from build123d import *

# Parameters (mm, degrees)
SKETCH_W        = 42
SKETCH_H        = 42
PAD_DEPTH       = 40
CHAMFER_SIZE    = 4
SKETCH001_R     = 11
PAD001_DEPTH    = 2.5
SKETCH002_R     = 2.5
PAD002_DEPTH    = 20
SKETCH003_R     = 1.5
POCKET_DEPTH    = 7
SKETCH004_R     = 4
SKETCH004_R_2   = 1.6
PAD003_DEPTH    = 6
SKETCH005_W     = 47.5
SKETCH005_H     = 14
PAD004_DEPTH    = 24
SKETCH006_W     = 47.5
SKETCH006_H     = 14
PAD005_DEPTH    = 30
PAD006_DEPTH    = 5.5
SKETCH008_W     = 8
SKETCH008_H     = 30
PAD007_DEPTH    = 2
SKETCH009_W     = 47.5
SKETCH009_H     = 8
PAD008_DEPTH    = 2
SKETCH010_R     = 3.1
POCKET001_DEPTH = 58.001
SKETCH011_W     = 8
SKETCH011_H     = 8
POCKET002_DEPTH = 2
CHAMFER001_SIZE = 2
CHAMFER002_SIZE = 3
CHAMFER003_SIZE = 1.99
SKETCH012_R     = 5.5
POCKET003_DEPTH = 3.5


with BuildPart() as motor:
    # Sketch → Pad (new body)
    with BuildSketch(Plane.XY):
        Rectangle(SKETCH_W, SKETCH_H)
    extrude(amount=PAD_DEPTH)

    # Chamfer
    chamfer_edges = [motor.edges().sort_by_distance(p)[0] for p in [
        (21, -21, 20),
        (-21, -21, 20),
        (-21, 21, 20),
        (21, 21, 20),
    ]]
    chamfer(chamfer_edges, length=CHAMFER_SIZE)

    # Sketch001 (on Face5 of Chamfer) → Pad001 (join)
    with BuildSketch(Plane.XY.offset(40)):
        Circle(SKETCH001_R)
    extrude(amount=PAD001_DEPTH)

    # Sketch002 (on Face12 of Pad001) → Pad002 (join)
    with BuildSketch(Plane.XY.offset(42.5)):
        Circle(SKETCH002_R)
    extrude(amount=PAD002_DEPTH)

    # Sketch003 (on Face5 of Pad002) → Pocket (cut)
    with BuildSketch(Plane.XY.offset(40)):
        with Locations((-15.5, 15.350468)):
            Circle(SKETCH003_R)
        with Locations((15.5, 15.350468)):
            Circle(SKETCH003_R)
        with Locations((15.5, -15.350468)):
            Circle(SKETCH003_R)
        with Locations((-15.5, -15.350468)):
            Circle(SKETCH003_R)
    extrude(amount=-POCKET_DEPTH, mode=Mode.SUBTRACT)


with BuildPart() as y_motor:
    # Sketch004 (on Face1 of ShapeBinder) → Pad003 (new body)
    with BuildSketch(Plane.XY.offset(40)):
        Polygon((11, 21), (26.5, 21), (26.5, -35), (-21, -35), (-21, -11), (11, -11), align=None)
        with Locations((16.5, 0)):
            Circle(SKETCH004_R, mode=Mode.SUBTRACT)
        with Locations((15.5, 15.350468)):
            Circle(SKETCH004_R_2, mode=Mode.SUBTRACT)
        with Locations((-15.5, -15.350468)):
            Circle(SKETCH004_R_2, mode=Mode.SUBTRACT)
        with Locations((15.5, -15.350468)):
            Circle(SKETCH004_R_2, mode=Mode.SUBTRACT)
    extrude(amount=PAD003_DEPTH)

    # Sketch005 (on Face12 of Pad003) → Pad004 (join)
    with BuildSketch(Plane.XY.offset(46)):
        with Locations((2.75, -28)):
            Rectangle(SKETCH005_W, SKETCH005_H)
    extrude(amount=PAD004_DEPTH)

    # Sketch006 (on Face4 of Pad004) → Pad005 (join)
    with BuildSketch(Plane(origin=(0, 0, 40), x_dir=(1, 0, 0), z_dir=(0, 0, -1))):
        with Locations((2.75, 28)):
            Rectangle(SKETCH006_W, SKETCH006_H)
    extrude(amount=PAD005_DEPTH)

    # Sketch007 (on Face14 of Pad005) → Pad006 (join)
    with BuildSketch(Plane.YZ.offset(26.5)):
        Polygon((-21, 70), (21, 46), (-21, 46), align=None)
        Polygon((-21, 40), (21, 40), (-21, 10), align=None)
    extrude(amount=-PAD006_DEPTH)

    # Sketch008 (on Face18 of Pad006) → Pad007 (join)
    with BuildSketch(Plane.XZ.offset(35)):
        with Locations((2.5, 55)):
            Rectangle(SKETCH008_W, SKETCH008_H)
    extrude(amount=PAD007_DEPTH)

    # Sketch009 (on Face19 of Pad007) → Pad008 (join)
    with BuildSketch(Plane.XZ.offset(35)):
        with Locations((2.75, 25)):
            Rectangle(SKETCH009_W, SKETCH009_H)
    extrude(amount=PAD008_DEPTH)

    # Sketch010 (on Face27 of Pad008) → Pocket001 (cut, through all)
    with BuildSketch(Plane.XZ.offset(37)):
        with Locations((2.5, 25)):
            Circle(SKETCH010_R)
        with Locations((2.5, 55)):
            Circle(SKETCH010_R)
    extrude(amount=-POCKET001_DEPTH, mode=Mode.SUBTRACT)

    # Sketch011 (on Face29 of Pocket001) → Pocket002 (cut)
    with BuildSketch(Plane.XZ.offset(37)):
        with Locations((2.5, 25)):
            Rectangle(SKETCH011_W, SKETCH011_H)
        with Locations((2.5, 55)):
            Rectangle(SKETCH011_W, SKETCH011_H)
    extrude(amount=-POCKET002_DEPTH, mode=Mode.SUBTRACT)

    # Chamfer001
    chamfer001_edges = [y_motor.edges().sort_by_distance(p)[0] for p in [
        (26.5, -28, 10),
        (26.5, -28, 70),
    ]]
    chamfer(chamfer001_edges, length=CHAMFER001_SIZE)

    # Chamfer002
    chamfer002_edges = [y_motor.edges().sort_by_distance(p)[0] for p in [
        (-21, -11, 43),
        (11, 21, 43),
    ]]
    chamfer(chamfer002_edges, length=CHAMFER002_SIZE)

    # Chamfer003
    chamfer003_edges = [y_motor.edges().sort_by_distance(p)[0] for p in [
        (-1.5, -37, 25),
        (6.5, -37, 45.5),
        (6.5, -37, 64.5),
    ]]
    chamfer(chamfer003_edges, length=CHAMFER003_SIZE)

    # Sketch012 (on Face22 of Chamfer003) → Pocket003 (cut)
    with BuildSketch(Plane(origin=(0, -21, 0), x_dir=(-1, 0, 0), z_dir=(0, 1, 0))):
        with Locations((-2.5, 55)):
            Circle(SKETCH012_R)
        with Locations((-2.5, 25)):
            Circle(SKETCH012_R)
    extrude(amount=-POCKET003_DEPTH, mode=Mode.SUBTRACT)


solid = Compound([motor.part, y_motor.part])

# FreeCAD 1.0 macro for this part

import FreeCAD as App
import Part
import Sketcher

V = App.Vector


def edges_at(feature, points):
    """Names of the edges that pass closest to the given points."""
    edges = feature.Shape.Edges
    near = lambda p: min(range(len(edges)), key=lambda i: edges[i].distToShape(Part.Vertex(*p))[0])
    return sorted({f"Edge{near(p) + 1}" for p in points})


def add_polygon(sketch, points):
    """Adds a closed chain of lines whose ends are joined by coincident constraints."""
    first, n = sketch.GeometryCount, len(points)
    for a, b in zip(points, points[1:] + points[:1]):
        sketch.addGeometry(Part.LineSegment(App.Vector(*a, 0), App.Vector(*b, 0)), False)
    for i in range(n):
        sketch.addConstraint(Sketcher.Constraint("Coincident", first + i, 2, first + (i + 1) % n, 1))

doc = App.newDocument("Part")
body = doc.addObject("PartDesign::Body", "Body")

sketch1 = body.newObject("Sketcher::SketchObject", "Sketch")
sketch1.AttachmentSupport = (doc.getObject("XY_Plane"), [""])
sketch1.MapMode = "FlatFace"
add_polygon(sketch1, [(-21, 21), (-21, -21), (21, -21), (21, 21)])
sketch1.addConstraint([
    Sketcher.Constraint("Vertical", 0),
    Sketcher.Constraint("Horizontal", 1),
    Sketcher.Constraint("Vertical", 2),
    Sketcher.Constraint("Horizontal", 3),
    Sketcher.Constraint("Symmetric", 0, 2, 2, 2, -1, 1),
    Sketcher.Constraint("Equal", 3, 0),
    Sketcher.Constraint("DistanceX", 1, 1, 1, 2, 42.0),
])
pad1 = body.newObject("PartDesign::Pad", "Pad")
pad1.Profile = sketch1
pad1.Length = 40
doc.recompute()

chamfer = body.newObject("PartDesign::Chamfer", "Chamfer")
chamfer.Base = (pad1, edges_at(pad1, [
    (21, -21, 20),
    (-21, -21, 20),
    (-21, 21, 20),
    (21, 21, 20),
]))
chamfer.Size = 4

sketch2 = body.newObject("Sketcher::SketchObject", "Sketch001")
sketch2.AttachmentSupport = (doc.getObject("XY_Plane"), [""])
sketch2.MapMode = "FlatFace"
sketch2.AttachmentOffset = App.Placement(V(0, 0, 40), App.Rotation())
sketch2.addGeometry(Part.Circle(V(0, 0, 0), V(0, 0, 1), 11), False)
sketch2.addConstraint([
    Sketcher.Constraint("Coincident", 0, 3, -1, 1),
    Sketcher.Constraint("Diameter", 0, 22.0),
])
pad2 = body.newObject("PartDesign::Pad", "Pad001")
pad2.Profile = sketch2
pad2.Length = 2.5

sketch3 = body.newObject("Sketcher::SketchObject", "Sketch002")
sketch3.AttachmentSupport = (doc.getObject("XY_Plane"), [""])
sketch3.MapMode = "FlatFace"
sketch3.AttachmentOffset = App.Placement(V(0, 0, 42.5), App.Rotation())
sketch3.addGeometry(Part.Circle(V(0, 0, 0), V(0, 0, 1), 2.5), False)
sketch3.addConstraint([
    Sketcher.Constraint("Coincident", 0, 3, -1, 1),
    Sketcher.Constraint("Diameter", 0, 5.0),
])
pad3 = body.newObject("PartDesign::Pad", "Pad002")
pad3.Profile = sketch3
pad3.Length = 20

sketch4 = body.newObject("Sketcher::SketchObject", "Sketch003")
sketch4.AttachmentSupport = (doc.getObject("XY_Plane"), [""])
sketch4.MapMode = "FlatFace"
sketch4.AttachmentOffset = App.Placement(V(0, 0, 40), App.Rotation())
sketch4.addGeometry([
    Part.Circle(V(-15.5, 15.4, 0), V(0, 0, 1), 1.5),
    Part.Circle(V(15.5, 15.4, 0), V(0, 0, 1), 1.5),
    Part.Circle(V(15.5, -15.4, 0), V(0, 0, 1), 1.5),
    Part.Circle(V(-15.5, -15.4, 0), V(0, 0, 1), 1.5),
], False)
sketch4.addConstraint([
    Sketcher.Constraint("Equal", 0, 1),
    Sketcher.Constraint("Equal", 1, 2),
    Sketcher.Constraint("Equal", 2, 3),
    Sketcher.Constraint("Symmetric", 0, 3, 2, 3, -1, 1),
    Sketcher.Constraint("Symmetric", 1, 3, 3, 3, -1, 1),
    Sketcher.Constraint("Symmetric", 0, 3, 1, 3, -2),
    Sketcher.Constraint("Diameter", 0, 3.0),
    Sketcher.Constraint("DistanceX", 0, 3, 1, 3, 31.0),
    Sketcher.Constraint("DistanceY", -1, 1, 0, 3, 15.350468),
])
pocket1 = body.newObject("PartDesign::Pocket", "Pocket")
pocket1.Profile = sketch4
pocket1.Length = 7
body2 = doc.addObject("PartDesign::Body", "Body001")

sketch5 = body2.newObject("Sketcher::SketchObject", "Sketch004")
sketch5.AttachmentSupport = (doc.getObject("XY_Plane001"), [""])
sketch5.MapMode = "FlatFace"
sketch5.AttachmentOffset = App.Placement(V(0, 0, 40), App.Rotation())
add_polygon(sketch5, [(26.5, 21), (11, 21), (11, -11), (-21, -11), (-21, -35), (26.5, -35)])
sketch5.addGeometry(Part.Circle(V(15.5, -15.4, 0), V(0, 0, 1), 1.6), False)
sketch5.addGeometry(Part.Circle(V(-15.5, -15.4, 0), V(0, 0, 1), 1.6), False)
sketch5.addGeometry(Part.Circle(V(16.5, 0, 0), V(0, 0, 1), 4), False)
sketch5.addGeometry(Part.Circle(V(15.5, 15.4, 0), V(0, 0, 1), 1.6), False)
sketch5.addConstraint([
    Sketcher.Constraint("Horizontal", 0),
    Sketcher.Constraint("Vertical", 1),
    Sketcher.Constraint("Horizontal", 2),
    Sketcher.Constraint("Vertical", 3),
    Sketcher.Constraint("Horizontal", 4),
    Sketcher.Constraint("Vertical", 5),
    Sketcher.Constraint("Equal", 6, 7),
    Sketcher.Constraint("Equal", 7, 9),
    Sketcher.Constraint("Symmetric", 7, 3, 9, 3, -1, 1),
    Sketcher.Constraint("Symmetric", 6, 3, 7, 3, -2),
    Sketcher.Constraint("PointOnObject", 8, 3, -1),
    Sketcher.Constraint("Equal", 2, 1),
    Sketcher.Constraint("Diameter", 8, 8.0),
    Sketcher.Constraint("Diameter", 6, 3.2),
    Sketcher.Constraint("DistanceX", 2, 2, 2, 1, 32.0),
    Sketcher.Constraint("DistanceY", 3, 2, 3, 1, 24.0),
    Sketcher.Constraint("DistanceX", 0, 2, 0, 1, 15.5),
    Sketcher.Constraint("DistanceX", -1, 1, 0, 2, 11.0),
    Sketcher.Constraint("DistanceY", -1, 1, 0, 2, 21.0),
    Sketcher.Constraint("DistanceX", 7, 3, 6, 3, 31.0),
    Sketcher.Constraint("DistanceX", 6, 3, 8, 3, 1.0),
    Sketcher.Constraint("DistanceY", 6, 3, -1, 1, 15.350468),
])
pad4 = body2.newObject("PartDesign::Pad", "Pad003")
pad4.Profile = sketch5
pad4.Length = 6

sketch6 = body2.newObject("Sketcher::SketchObject", "Sketch005")
sketch6.AttachmentSupport = (doc.getObject("XY_Plane001"), [""])
sketch6.MapMode = "FlatFace"
sketch6.AttachmentOffset = App.Placement(V(0, 0, 46), App.Rotation())
add_polygon(sketch6, [(-21, -21), (-21, -35), (26, -35), (26, -21)])
sketch6.addConstraint([
    Sketcher.Constraint("Vertical", 0),
    Sketcher.Constraint("Horizontal", 1),
    Sketcher.Constraint("Vertical", 2),
    Sketcher.Constraint("Horizontal", 3),
    Sketcher.Constraint("DistanceY", 0, 2, 0, 1, 14.0),
    Sketcher.Constraint("DistanceX", 1, 1, 1, 2, 47.5),
    Sketcher.Constraint("DistanceX", 0, 2, -1, 1, 21.0),
    Sketcher.Constraint("DistanceY", 0, 2, -1, 1, 35.0),
])
pad5 = body2.newObject("PartDesign::Pad", "Pad004")
pad5.Profile = sketch6
pad5.Length = 24

sketch7 = body2.newObject("Sketcher::SketchObject", "Sketch006")
sketch7.AttachmentSupport = (doc.getObject("XY_Plane001"), [""])
sketch7.MapMode = "FlatFace"
sketch7.AttachmentOffset = App.Placement(V(0, 0, 40), App.Rotation())
add_polygon(sketch7, [(-21, -35), (-21, -21), (26, -21), (26, -35)])
sketch7.addConstraint([
    Sketcher.Constraint("Vertical", 0),
    Sketcher.Constraint("Horizontal", 1),
    Sketcher.Constraint("Vertical", 2),
    Sketcher.Constraint("Horizontal", 3),
    Sketcher.Constraint("DistanceY", 0, 1, 0, 2, 14.0),
    Sketcher.Constraint("DistanceX", 1, 1, 1, 2, 47.5),
    Sketcher.Constraint("DistanceX", 0, 2, -1, 1, 21.0),
    Sketcher.Constraint("DistanceY", 0, 2, -1, 1, 21.0),
])
pad6 = body2.newObject("PartDesign::Pad", "Pad005")
pad6.Profile = sketch7
pad6.Length = 30
pad6.Reversed = True

sketch8 = body2.newObject("Sketcher::SketchObject", "Sketch007")
sketch8.AttachmentSupport = (doc.getObject("YZ_Plane001"), [""])
sketch8.MapMode = "FlatFace"
sketch8.AttachmentOffset = App.Placement(V(0, 0, 26.5), App.Rotation())
add_polygon(sketch8, [(21, 46), (-21, 70), (-21, 46)])
add_polygon(sketch8, [(21, 40), (-21, 40), (-21, 10)])
sketch8.addConstraint([
    Sketcher.Constraint("Vertical", 1),
    Sketcher.Constraint("Horizontal", 2),
    Sketcher.Constraint("Horizontal", 3),
    Sketcher.Constraint("Vertical", 4),
    Sketcher.Constraint("Vertical", 1, 2, 3, 2),
    Sketcher.Constraint("Vertical", 2, 2, 5, 2),
    Sketcher.Constraint("DistanceX", 2, 1, 2, 2, 42.0),
    Sketcher.Constraint("DistanceY", 1, 2, 1, 1, 24.0),
    Sketcher.Constraint("DistanceY", 4, 2, 4, 1, 30.0),
    Sketcher.Constraint("DistanceX", 0, 2, -1, 1, 21.0),
    Sketcher.Constraint("DistanceY", -1, 1, 0, 2, 70.0),
    Sketcher.Constraint("DistanceY", -1, 1, 3, 2, 40.0),
])
pad7 = body2.newObject("PartDesign::Pad", "Pad006")
pad7.Profile = sketch8
pad7.Length = 5.5
pad7.Reversed = True

sketch9 = body2.newObject("Sketcher::SketchObject", "Sketch008")
sketch9.AttachmentSupport = (doc.getObject("XZ_Plane001"), [""])
sketch9.MapMode = "FlatFace"
sketch9.AttachmentOffset = App.Placement(V(0, 0, 35), App.Rotation())
add_polygon(sketch9, [(-2, 70), (-2, 40), (6, 40), (6, 70)])
sketch9.addConstraint([
    Sketcher.Constraint("Vertical", 0),
    Sketcher.Constraint("Horizontal", 1),
    Sketcher.Constraint("Vertical", 2),
    Sketcher.Constraint("Horizontal", 3),
    Sketcher.Constraint("DistanceX", 1, 1, 1, 2, 8.0),
    Sketcher.Constraint("DistanceY", 0, 2, 0, 1, 30.0),
    Sketcher.Constraint("DistanceY", -1, 1, 0, 2, 40.0),
    Sketcher.Constraint("DistanceX", 0, 2, -1, 1, 1.5),
])
pad8 = body2.newObject("PartDesign::Pad", "Pad007")
pad8.Profile = sketch9
pad8.Length = 2

sketch10 = body2.newObject("Sketcher::SketchObject", "Sketch009")
sketch10.AttachmentSupport = (doc.getObject("XZ_Plane001"), [""])
sketch10.MapMode = "FlatFace"
sketch10.AttachmentOffset = App.Placement(V(0, 0, 35), App.Rotation())
add_polygon(sketch10, [(-21, 29), (-21, 21), (26, 21), (26, 29)])
sketch10.addConstraint([
    Sketcher.Constraint("Vertical", 0),
    Sketcher.Constraint("Horizontal", 1),
    Sketcher.Constraint("Vertical", 2),
    Sketcher.Constraint("Horizontal", 3),
    Sketcher.Constraint("DistanceY", 0, 2, 0, 1, 8.0),
    Sketcher.Constraint("DistanceX", 1, 1, 1, 2, 47.5),
    Sketcher.Constraint("DistanceX", 0, 2, -1, 1, 21.0),
    Sketcher.Constraint("DistanceY", -1, 1, 0, 2, 21.0),
])
pad9 = body2.newObject("PartDesign::Pad", "Pad008")
pad9.Profile = sketch10
pad9.Length = 2

sketch11 = body2.newObject("Sketcher::SketchObject", "Sketch010")
sketch11.AttachmentSupport = (doc.getObject("XZ_Plane001"), [""])
sketch11.MapMode = "FlatFace"
sketch11.AttachmentOffset = App.Placement(V(0, 0, 37), App.Rotation())
sketch11.addGeometry([
    Part.Circle(V(2.5, 25, 0), V(0, 0, 1), 3.1),
    Part.Circle(V(2.5, 55, 0), V(0, 0, 1), 3.1),
], False)
sketch11.addConstraint([
    Sketcher.Constraint("Equal", 0, 1),
    Sketcher.Constraint("Vertical", 0, 3, 1, 3),
    Sketcher.Constraint("Diameter", 0, 6.2),
    Sketcher.Constraint("DistanceY", -1, 1, 0, 3, 25.0),
    Sketcher.Constraint("DistanceY", -1, 1, 1, 3, 55.0),
    Sketcher.Constraint("DistanceX", -1, 1, 0, 3, 2.5),
])
pocket2 = body2.newObject("PartDesign::Pocket", "Pocket001")
pocket2.Profile = sketch11
pocket2.Type = "ThroughAll"

sketch12 = body2.newObject("Sketcher::SketchObject", "Sketch011")
sketch12.AttachmentSupport = (doc.getObject("XZ_Plane001"), [""])
sketch12.MapMode = "FlatFace"
sketch12.AttachmentOffset = App.Placement(V(0, 0, 37), App.Rotation())
add_polygon(sketch12, [(-2, 29), (-2, 21), (6, 21), (6, 29)])
add_polygon(sketch12, [(-2, 59), (-2, 51), (6, 51), (6, 59)])
sketch12.addConstraint([
    Sketcher.Constraint("Vertical", 0),
    Sketcher.Constraint("Horizontal", 1),
    Sketcher.Constraint("Vertical", 2),
    Sketcher.Constraint("Horizontal", 3),
    Sketcher.Constraint("Vertical", 4),
    Sketcher.Constraint("Horizontal", 5),
    Sketcher.Constraint("Vertical", 6),
    Sketcher.Constraint("Horizontal", 7),
    Sketcher.Constraint("Vertical", 3, 2, 4, 2),
    Sketcher.Constraint("Vertical", 2, 2, 5, 2),
    Sketcher.Constraint("Equal", 7, 0),
    Sketcher.Constraint("Equal", 2, 4),
    Sketcher.Constraint("DistanceX", 1, 1, 1, 2, 8.0),
    Sketcher.Constraint("DistanceY", -1, 1, 0, 2, 21.0),
    Sketcher.Constraint("DistanceY", -1, 1, 4, 2, 51.0),
    Sketcher.Constraint("DistanceX", 0, 2, -1, 1, 1.5),
])
pocket3 = body2.newObject("PartDesign::Pocket", "Pocket002")
pocket3.Profile = sketch12
pocket3.Length = 2
doc.recompute()

chamfer2 = body2.newObject("PartDesign::Chamfer", "Chamfer001")
chamfer2.Base = (pocket3, edges_at(pocket3, [(26.5, -28, 10), (26.5, -28, 70)]))
chamfer2.Size = 2
doc.recompute()

chamfer3 = body2.newObject("PartDesign::Chamfer", "Chamfer002")
chamfer3.Base = (chamfer2, edges_at(chamfer2, [(-21, -11, 43), (11, 21, 43)]))
chamfer3.Size = 3
doc.recompute()

chamfer4 = body2.newObject("PartDesign::Chamfer", "Chamfer003")
chamfer4.Base = (chamfer3, edges_at(chamfer3, [(-1.5, -37, 25), (6.5, -37, 45.5), (6.5, -37, 64.5)]))
chamfer4.Size = 1.99

sketch13 = body2.newObject("Sketcher::SketchObject", "Sketch012")
sketch13.AttachmentSupport = (doc.getObject("XZ_Plane001"), [""])
sketch13.MapMode = "FlatFace"
sketch13.AttachmentOffset = App.Placement(V(0, 0, 21), App.Rotation())
sketch13.addGeometry([
    Part.Circle(V(2, 55, 0), V(0, 0, 1), 6),
    Part.Circle(V(2, 25, 0), V(0, 0, 1), 6),
], False)
sketch13.addConstraint([
    Sketcher.Constraint("Equal", 0, 1),
    Sketcher.Constraint("Vertical", 0, 3, 1, 3),
    Sketcher.Constraint("Diameter", 0, 11.0),
    Sketcher.Constraint("DistanceY", -1, 1, 0, 3, 55.0),
    Sketcher.Constraint("DistanceY", -1, 1, 1, 3, 25.0),
    Sketcher.Constraint("DistanceX", -1, 1, 0, 3, 2.5),
])
pocket4 = body2.newObject("PartDesign::Pocket", "Pocket003")
pocket4.Profile = sketch13
pocket4.Length = 3.5
pocket4.Reversed = True

doc.recompute()
